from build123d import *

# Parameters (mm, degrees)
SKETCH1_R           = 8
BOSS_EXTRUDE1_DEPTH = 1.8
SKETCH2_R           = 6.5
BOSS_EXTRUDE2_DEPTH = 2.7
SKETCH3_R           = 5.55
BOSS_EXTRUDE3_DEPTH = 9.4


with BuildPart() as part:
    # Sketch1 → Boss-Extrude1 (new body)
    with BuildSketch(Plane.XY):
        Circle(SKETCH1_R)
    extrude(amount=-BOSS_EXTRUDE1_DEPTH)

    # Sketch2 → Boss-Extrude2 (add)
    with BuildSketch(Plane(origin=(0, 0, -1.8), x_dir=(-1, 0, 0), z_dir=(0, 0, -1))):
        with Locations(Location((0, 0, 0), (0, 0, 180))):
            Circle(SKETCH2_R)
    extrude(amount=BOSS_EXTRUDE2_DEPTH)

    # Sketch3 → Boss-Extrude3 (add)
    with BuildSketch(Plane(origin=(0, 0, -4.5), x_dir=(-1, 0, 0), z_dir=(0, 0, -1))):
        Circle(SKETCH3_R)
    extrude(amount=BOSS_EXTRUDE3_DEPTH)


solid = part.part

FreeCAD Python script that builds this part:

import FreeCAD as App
import Part
import Sketcher
Q = App.Units.Quantity

doc = App.newDocument("Part")
body = doc.addObject("PartDesign::Body", "Body")

# Sketch on XY plane
sketch1 = doc.addObject("Sketcher::SketchObject", "Sketch")
body.addObject(sketch1)
sketch1.AttachmentSupport = (doc.XY_Plane, [""])
sketch1.MapMode = "FlatFace"
sketch1.addGeometry(Part.Circle(App.Vector(0, 0, 0), App.Vector(0, 0, 1), 8), False)
sketch1.addConstraint([
    Sketcher.Constraint("Coincident", 0, 3, -1, 1),
    Sketcher.Constraint("Diameter", 0, Q("16 mm")),
])
pad1 = doc.addObject("PartDesign::Pad", "Pad")
body.addObject(pad1)
pad1.Profile = sketch1
pad1.Length = 1.8
pad1.Reversed = True

# Sketch on XY plane
sketch2 = doc.addObject("Sketcher::SketchObject", "Sketch001")
body.addObject(sketch2)
sketch2.AttachmentSupport = (doc.XY_Plane, [""])
sketch2.MapMode = "FlatFace"
sketch2.AttachmentOffset = App.Placement(App.Vector(0, 0, -1.8), App.Rotation())
sketch2.addGeometry(Part.Circle(App.Vector(0, 0, 0), App.Vector(0, 0, 1), 6.5), False)
sketch2.addConstraint([
    Sketcher.Constraint("Coincident", 0, 3, -1, 1),
    Sketcher.Constraint("Diameter", 0, Q("13 mm")),
])
pad2 = doc.addObject("PartDesign::Pad", "Pad001")
body.addObject(pad2)
pad2.Profile = sketch2
pad2.Length = 2.7
pad2.Reversed = True

# Sketch on XY plane
sketch3 = doc.addObject("Sketcher::SketchObject", "Sketch002")
body.addObject(sketch3)
sketch3.AttachmentSupport = (doc.XY_Plane, [""])
sketch3.MapMode = "FlatFace"
sketch3.AttachmentOffset = App.Placement(App.Vector(0, 0, -4.5), App.Rotation())
sketch3.addGeometry(Part.Circle(App.Vector(0, 0, 0), App.Vector(0, 0, 1), 5.55), False)
sketch3.addConstraint([
    Sketcher.Constraint("Coincident", 0, 3, -1, 1),
    Sketcher.Constraint("Diameter", 0, Q("11.1 mm")),
])
pad3 = doc.addObject("PartDesign::Pad", "Pad002")
body.addObject(pad3)
pad3.Profile = sketch3
pad3.Length = 9.4
pad3.Reversed = True

doc.recompute()
